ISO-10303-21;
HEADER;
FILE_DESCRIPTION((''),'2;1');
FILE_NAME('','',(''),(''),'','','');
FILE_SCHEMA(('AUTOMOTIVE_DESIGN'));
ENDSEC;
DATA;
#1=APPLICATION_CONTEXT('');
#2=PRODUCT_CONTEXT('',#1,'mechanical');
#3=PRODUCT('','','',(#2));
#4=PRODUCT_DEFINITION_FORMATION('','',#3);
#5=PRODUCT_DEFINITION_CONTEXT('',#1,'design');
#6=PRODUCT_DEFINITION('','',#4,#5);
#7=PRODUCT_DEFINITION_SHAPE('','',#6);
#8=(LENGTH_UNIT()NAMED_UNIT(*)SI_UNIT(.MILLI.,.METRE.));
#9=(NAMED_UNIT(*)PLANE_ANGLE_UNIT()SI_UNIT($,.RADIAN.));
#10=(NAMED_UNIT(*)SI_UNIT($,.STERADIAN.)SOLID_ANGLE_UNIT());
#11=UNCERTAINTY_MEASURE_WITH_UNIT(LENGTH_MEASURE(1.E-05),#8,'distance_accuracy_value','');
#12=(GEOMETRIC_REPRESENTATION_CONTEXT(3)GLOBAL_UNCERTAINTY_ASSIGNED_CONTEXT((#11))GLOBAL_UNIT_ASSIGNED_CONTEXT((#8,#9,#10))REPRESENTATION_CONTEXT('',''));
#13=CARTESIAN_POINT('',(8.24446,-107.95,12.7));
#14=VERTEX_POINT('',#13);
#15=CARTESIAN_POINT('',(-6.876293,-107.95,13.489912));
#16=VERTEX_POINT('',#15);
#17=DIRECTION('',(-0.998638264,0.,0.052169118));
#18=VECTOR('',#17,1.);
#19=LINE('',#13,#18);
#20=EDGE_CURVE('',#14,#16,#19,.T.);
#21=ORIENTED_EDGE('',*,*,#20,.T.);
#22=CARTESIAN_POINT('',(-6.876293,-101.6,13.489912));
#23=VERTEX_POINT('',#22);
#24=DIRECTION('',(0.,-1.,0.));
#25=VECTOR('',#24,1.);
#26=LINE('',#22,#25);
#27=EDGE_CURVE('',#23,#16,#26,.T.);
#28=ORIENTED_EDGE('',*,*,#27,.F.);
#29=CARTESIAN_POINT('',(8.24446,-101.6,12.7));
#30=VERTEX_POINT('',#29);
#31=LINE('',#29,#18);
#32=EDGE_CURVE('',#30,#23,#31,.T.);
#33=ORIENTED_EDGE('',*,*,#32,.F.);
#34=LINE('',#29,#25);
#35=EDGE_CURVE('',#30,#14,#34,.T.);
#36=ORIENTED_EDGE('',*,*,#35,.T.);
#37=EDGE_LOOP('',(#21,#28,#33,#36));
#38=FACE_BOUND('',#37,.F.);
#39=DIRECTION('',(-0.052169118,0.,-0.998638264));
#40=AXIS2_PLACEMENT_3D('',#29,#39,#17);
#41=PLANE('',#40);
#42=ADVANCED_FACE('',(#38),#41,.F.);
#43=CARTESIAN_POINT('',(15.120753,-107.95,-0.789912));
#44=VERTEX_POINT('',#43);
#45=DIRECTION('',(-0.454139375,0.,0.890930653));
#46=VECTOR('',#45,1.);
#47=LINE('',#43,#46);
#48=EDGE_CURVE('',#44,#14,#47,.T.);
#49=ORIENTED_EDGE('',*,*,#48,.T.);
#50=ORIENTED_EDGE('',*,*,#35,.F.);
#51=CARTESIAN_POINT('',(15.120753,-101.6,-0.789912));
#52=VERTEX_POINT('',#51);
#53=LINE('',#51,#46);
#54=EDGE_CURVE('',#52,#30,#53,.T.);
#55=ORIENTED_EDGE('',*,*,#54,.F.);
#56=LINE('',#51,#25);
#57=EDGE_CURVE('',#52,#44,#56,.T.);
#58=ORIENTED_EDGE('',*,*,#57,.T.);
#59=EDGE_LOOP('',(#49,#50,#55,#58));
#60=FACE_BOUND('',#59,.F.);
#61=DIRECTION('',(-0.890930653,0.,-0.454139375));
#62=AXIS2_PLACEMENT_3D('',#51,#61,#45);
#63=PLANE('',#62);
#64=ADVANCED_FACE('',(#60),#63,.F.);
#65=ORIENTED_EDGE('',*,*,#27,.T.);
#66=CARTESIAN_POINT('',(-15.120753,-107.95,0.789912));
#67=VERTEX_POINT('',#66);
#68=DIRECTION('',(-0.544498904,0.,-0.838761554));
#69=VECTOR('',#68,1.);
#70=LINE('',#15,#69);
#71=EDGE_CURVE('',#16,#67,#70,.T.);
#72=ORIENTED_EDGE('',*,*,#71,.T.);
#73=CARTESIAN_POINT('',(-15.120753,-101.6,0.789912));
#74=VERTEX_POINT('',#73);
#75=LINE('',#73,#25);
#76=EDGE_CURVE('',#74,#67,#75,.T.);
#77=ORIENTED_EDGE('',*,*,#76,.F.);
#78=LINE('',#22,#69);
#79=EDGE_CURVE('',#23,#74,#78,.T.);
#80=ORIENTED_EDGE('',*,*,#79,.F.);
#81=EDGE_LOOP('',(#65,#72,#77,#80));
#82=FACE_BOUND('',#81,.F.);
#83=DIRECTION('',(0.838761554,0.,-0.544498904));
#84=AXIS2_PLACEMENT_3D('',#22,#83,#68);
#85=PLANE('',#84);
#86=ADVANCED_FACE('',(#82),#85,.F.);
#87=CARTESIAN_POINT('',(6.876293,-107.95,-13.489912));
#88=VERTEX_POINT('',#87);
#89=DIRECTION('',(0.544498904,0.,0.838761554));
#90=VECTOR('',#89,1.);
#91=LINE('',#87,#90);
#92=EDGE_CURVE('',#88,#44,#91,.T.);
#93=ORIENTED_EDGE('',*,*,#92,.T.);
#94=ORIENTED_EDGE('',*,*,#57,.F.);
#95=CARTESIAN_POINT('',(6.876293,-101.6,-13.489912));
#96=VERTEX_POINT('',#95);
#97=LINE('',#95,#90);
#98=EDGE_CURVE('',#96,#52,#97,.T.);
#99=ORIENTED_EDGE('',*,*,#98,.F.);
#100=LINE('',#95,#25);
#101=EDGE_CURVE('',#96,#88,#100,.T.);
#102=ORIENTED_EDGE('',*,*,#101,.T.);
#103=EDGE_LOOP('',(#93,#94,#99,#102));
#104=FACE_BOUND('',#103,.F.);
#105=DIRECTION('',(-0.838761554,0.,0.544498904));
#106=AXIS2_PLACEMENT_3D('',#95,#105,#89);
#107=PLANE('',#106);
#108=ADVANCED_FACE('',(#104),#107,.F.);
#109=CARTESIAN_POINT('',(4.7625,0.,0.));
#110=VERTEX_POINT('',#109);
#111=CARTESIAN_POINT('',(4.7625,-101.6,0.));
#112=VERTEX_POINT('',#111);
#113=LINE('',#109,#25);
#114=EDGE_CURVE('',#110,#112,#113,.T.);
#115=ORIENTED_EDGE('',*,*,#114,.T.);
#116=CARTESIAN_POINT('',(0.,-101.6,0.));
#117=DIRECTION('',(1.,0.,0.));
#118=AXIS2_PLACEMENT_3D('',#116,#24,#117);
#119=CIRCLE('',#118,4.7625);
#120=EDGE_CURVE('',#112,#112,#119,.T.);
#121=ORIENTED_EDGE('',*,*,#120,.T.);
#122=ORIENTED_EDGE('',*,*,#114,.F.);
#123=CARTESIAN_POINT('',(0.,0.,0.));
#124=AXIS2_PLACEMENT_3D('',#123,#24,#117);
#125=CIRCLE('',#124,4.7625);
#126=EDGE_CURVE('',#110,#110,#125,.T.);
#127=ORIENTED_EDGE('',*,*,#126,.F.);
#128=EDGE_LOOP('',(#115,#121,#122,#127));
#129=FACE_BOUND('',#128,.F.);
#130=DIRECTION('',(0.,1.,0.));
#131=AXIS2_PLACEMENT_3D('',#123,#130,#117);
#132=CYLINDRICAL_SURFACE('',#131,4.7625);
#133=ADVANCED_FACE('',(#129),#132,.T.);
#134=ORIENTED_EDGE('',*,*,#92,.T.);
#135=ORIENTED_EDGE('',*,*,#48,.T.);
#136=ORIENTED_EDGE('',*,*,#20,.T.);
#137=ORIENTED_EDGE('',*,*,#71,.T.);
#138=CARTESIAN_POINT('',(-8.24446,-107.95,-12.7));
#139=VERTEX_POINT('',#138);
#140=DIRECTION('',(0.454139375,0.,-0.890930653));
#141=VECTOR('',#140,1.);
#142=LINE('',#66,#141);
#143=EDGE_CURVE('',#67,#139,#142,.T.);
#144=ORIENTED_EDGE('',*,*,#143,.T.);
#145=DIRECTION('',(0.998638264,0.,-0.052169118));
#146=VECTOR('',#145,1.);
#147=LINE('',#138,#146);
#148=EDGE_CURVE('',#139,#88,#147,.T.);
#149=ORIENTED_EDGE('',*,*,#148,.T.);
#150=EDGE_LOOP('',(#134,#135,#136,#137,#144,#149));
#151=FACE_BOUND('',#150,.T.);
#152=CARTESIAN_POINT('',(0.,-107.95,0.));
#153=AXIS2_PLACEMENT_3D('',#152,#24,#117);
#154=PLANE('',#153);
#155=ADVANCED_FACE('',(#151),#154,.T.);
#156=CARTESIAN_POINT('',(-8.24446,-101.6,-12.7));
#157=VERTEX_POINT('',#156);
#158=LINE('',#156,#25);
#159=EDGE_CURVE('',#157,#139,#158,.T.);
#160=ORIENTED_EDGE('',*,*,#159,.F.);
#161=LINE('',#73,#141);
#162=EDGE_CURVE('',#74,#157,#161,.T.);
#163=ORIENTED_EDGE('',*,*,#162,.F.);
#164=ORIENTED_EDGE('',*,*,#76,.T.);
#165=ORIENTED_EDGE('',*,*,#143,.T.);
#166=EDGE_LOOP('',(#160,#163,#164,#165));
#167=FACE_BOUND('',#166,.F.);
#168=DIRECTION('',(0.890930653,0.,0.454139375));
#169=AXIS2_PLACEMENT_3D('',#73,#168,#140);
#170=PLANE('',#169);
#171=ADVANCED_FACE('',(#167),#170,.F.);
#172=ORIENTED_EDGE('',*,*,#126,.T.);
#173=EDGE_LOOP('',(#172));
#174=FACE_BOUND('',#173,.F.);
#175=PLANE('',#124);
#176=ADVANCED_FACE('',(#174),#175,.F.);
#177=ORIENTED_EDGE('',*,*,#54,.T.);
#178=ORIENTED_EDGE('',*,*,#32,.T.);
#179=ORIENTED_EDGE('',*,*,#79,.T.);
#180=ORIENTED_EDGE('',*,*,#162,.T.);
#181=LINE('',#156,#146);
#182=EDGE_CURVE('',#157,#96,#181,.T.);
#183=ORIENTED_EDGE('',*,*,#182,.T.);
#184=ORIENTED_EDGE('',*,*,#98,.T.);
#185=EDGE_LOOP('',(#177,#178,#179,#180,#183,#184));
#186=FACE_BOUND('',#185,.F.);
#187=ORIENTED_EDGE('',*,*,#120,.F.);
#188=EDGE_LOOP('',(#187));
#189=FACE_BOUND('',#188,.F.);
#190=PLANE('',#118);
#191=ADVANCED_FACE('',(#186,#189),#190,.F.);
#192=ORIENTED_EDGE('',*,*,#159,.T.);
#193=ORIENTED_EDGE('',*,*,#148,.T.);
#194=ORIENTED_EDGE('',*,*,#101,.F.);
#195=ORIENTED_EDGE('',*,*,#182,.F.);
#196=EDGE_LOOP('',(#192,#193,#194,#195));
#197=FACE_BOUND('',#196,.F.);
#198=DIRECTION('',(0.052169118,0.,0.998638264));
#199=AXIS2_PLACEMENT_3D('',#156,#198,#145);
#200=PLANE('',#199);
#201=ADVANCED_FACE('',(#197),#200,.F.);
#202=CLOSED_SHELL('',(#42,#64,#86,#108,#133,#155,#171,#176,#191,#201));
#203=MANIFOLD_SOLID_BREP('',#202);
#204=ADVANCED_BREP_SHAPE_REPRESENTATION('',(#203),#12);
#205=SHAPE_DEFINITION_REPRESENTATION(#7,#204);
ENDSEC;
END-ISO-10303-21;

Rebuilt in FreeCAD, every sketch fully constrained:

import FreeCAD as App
import Part
import Sketcher
from FreeCAD import Vector
Q = App.Units.Quantity

doc = App.newDocument("Part")
body = doc.addObject("PartDesign::Body", "Body")

# Sketch on XZ plane
sketch1 = doc.addObject("Sketcher::SketchObject", "Sketch")
body.addObject(sketch1)
sketch1.AttachmentSupport = (doc.XZ_Plane, [""])
sketch1.MapMode = "FlatFace"
sketch1.addGeometry(Part.Circle(Vector(0, 0, 0), Vector(0, 0, 1), 4.7625), False)
sketch1.addConstraint([
    Sketcher.Constraint("Coincident", 0, 3, -1, 1),
    Sketcher.Constraint("Diameter", 0, Q("0.375 in")),
])
pad1 = doc.addObject("PartDesign::Pad", "Pad")
body.addObject(pad1)
pad1.Profile = sketch1
pad1.Length = Q("4 in")

# Sketch on XZ plane
sketch2 = doc.addObject("Sketcher::SketchObject", "Sketch001")
body.addObject(sketch2)
sketch2.AttachmentSupport = (doc.XZ_Plane, [""])
sketch2.MapMode = "FlatFace"
sketch2.AttachmentOffset = App.Placement(Vector(0, 0, 4 * 25.4), App.Rotation())
sketch2.addGeometry([
    Part.LineSegment(Vector(6.876293, -13.489912, 0), Vector(15.120753, -0.789912, 0)),  # 0
    Part.LineSegment(Vector(15.120753, -0.789912, 0), Vector(8.24446, 12.7, 0)),  # 1
    Part.LineSegment(Vector(8.24446, 12.7, 0), Vector(-6.876293, 13.489912, 0)),  # 2
    Part.LineSegment(Vector(-6.876293, 13.489912, 0), Vector(-15.120753, 0.789912, 0)),  # 3
    Part.LineSegment(Vector(-15.120753, 0.789912, 0), Vector(-8.24446, -12.7, 0)),  # 4
    Part.LineSegment(Vector(-8.24446, -12.7, 0), Vector(6.876293, -13.489912, 0)),  # 5
], False)
sketch2.addConstraint([
    Sketcher.Constraint("Coincident", 0, 2, 1, 1),
    Sketcher.Constraint("Coincident", 1, 2, 2, 1),
    Sketcher.Constraint("Coincident", 2, 2, 3, 1),
    Sketcher.Constraint("Coincident", 3, 2, 4, 1),
    Sketcher.Constraint("Coincident", 4, 2, 5, 1),
    Sketcher.Constraint("Coincident", 5, 2, 0, 1),
    Sketcher.Constraint("Symmetric", 0, 2, 3, 2, -1, 1),
    Sketcher.Constraint("Symmetric", 1, 2, 4, 2, -1, 1),
    Sketcher.Constraint("Symmetric", 2, 2, 5, 2, -1, 1),
    Sketcher.Constraint("Equal", 0, 1),
    Sketcher.Constraint("Equal", 1, 2),
    Sketcher.Constraint("DistanceY", 4, 2, 1, 2, Q("1 in")),
    Sketcher.Constraint("DistanceY", 3, 2, 2, 2, Q("0.5 in")),
    Sketcher.Constraint("Distance", 0, Q("15.141371 mm")),
    Sketcher.Constraint("DistanceY", 0, 2, -1, 1, Q("0.789912 mm")),
])
pad2 = doc.addObject("PartDesign::Pad", "Pad001")
body.addObject(pad2)
pad2.Profile = sketch2
pad2.Length = Q("0.25 in")

doc.recompute()
